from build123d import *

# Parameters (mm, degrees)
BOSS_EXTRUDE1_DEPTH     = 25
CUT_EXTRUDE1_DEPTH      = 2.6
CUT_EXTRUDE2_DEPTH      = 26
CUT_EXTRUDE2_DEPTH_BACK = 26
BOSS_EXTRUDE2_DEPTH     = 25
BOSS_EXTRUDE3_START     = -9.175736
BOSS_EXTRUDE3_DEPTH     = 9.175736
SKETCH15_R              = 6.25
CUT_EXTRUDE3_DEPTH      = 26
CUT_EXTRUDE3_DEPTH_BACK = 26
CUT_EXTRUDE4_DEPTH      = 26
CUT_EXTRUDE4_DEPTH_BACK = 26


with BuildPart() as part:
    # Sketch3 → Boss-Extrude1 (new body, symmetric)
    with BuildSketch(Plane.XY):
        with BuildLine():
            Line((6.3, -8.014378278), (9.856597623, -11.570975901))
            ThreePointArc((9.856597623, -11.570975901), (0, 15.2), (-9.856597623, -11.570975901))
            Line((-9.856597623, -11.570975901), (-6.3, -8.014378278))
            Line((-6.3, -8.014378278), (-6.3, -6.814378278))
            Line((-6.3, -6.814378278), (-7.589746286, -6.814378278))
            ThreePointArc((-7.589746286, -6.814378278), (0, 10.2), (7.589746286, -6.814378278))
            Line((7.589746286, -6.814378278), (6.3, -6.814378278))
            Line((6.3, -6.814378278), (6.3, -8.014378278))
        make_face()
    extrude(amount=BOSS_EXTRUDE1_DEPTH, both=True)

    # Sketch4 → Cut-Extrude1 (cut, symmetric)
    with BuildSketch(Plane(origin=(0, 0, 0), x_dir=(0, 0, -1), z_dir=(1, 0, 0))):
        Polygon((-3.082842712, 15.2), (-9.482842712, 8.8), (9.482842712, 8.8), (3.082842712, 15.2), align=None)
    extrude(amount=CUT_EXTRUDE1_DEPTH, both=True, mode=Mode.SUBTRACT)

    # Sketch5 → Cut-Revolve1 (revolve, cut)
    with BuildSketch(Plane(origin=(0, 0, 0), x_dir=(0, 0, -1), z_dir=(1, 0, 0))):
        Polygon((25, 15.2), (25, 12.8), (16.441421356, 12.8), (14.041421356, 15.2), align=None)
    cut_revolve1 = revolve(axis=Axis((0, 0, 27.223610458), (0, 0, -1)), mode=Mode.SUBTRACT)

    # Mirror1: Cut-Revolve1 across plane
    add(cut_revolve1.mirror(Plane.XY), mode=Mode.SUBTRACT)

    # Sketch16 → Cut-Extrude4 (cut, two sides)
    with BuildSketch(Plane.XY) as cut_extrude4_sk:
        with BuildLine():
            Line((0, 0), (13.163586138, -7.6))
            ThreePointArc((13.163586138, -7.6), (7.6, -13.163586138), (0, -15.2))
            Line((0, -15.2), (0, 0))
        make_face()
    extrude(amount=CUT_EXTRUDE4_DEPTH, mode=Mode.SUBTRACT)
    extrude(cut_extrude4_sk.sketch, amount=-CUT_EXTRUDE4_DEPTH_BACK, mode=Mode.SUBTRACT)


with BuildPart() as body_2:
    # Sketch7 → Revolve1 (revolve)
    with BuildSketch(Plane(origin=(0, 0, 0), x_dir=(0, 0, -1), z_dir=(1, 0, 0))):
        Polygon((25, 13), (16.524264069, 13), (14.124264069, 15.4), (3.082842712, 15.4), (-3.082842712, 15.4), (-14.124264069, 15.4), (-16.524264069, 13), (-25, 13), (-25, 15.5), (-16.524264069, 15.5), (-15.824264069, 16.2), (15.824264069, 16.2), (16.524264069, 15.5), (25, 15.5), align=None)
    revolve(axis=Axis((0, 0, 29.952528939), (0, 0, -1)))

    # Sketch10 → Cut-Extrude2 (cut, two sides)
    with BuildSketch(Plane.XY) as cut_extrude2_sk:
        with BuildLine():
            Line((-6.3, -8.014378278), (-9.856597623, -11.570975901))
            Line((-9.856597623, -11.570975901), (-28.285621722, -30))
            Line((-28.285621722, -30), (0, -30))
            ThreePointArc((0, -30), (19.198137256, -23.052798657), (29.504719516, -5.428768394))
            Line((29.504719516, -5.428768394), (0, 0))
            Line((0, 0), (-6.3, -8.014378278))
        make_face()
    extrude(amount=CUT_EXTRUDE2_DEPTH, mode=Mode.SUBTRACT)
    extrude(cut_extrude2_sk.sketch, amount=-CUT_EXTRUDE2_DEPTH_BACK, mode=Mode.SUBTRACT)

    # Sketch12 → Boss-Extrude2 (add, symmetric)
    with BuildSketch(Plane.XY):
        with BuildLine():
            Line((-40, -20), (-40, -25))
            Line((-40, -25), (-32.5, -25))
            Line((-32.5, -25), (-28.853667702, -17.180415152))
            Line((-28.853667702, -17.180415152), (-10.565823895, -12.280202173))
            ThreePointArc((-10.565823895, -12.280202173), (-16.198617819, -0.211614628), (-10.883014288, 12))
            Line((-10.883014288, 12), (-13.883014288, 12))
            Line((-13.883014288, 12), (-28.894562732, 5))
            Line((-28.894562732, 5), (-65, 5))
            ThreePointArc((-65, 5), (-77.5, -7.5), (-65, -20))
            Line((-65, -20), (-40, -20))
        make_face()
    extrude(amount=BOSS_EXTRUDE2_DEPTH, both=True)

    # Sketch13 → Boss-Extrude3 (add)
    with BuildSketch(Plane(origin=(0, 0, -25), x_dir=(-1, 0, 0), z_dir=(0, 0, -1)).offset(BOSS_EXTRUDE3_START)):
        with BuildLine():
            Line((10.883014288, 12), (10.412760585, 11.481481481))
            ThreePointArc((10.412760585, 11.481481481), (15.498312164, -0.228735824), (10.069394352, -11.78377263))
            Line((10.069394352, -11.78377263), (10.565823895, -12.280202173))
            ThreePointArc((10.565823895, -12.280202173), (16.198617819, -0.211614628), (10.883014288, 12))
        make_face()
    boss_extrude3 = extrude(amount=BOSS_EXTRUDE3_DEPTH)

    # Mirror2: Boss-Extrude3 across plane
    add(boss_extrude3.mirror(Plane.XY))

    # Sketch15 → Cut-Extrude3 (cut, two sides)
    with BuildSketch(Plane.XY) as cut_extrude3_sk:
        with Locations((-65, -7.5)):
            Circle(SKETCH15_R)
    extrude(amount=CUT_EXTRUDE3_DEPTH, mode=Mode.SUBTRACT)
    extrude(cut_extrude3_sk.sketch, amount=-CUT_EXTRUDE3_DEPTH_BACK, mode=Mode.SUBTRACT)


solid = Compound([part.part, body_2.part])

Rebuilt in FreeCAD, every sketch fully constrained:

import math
import FreeCAD as App
import Part
import Sketcher

V = App.Vector
Q = App.Units.Quantity

doc = App.newDocument("Part")
params = doc.addObject("Spreadsheet::Sheet", "Params")
for row, (alias, value) in enumerate([
    ("sketch1_radius", "15.2 mm"),
    ("sketch1_radius2", "10.2 mm"),
    ("sketch1_height", "1.2 mm"),
    ("pad1_length", "50 mm"),
    ("pocket1_length", "5.2 mm"),
    ("sketch3_width", "2.4 mm"),
    ("groove_angle", "360 deg"),
    ("sketch4_radius", "15.2 mm"),
    ("sketch5_width", "2.5 mm"),
    ("revolution_angle", "360 deg"),
    ("sketch6_radius", "30 mm"),
    ("sketch7_radius", "16.2 mm"),
    ("sketch7_radius2", "12.5 mm"),
    ("sketch7_width", "3 mm"),
    ("sketch7_width2", "25 mm"),
    ("sketch7_height", "5 mm"),
    ("pad2_length", "50 mm"),
    ("sketch8_radius", "15.5 mm"),
    ("sketch8_radius2", "16.2 mm"),
    ("pad3_length", "9.175736 mm"),
    ("sketch9_diameter", "12.5 mm"),
], start=1):
    params.set(f"A{row}", alias)
    params.set(f"B{row}", "=" + value)
    params.setAlias(f"B{row}", alias)

body = doc.addObject("PartDesign::Body", "Body")

# Sketch on XY plane
sketch1 = body.newObject("Sketcher::SketchObject", "Sketch")
sketch1.AttachmentSupport = (doc.getObject("XY_Plane"), [""])
sketch1.MapMode = "FlatFace"
sketch1.addGeometry([
    Part.LineSegment(V(6.3, -8, 0), V(9.9, -11.6, 0)),  # 0
    Part.ArcOfCircle(Part.Circle(V(0, 0, 0), V(0, 0, 1), 15.2), math.radians(-50), math.radians(230)),  # 1
    Part.LineSegment(V(-9.9, -11.6, 0), V(-6.3, -8, 0)),  # 2
    Part.LineSegment(V(-6.3, -8, 0), V(-6.3, -6.8, 0)),  # 3
    Part.LineSegment(V(-6.3, -6.8, 0), V(-7.6, -6.8, 0)),  # 4
    Part.ArcOfCircle(Part.Circle(V(0, 0, 0), V(0, 0, 1), 10.2), math.radians(-42), math.radians(222)),  # 5
    Part.LineSegment(V(7.6, -6.8, 0), V(6.3, -6.8, 0)),  # 6
    Part.LineSegment(V(6.3, -6.8, 0), V(6.3, -8, 0)),  # 7
], False)
sketch1.addConstraint([
    Sketcher.Constraint("Coincident", 0, 2, 1, 1),
    Sketcher.Constraint("Coincident", 1, 2, 2, 1),
    Sketcher.Constraint("Coincident", 2, 2, 3, 1),
    Sketcher.Constraint("Coincident", 3, 2, 4, 1),
    Sketcher.Constraint("Coincident", 4, 2, 5, 2),
    Sketcher.Constraint("Coincident", 5, 1, 6, 1),
    Sketcher.Constraint("Coincident", 6, 2, 7, 1),
    Sketcher.Constraint("Coincident", 7, 2, 0, 1),
    Sketcher.Constraint("Vertical", 3),
    Sketcher.Constraint("Horizontal", 4),
    Sketcher.Constraint("Horizontal", 6),
    Sketcher.Constraint("Vertical", 7),
    Sketcher.Constraint("Coincident", 1, 3, -1, 1),
    Sketcher.Constraint("Coincident", 5, 3, -1, 1),
    Sketcher.Constraint("Symmetric", 3, 2, 6, 2, -2),
    Sketcher.Constraint("Perpendicular", 0, 2),
    Sketcher.Constraint("Horizontal", 0, 2, 1, 2),
    Sketcher.Constraint("Horizontal", 2, 2, 7, 2),
    Sketcher.Constraint("Radius", 1, Q("15.2 mm")),
    Sketcher.Constraint("Radius", 5, Q("10.2 mm")),
    Sketcher.Constraint("DistanceY", 3, 1, 3, 2, Q("1.2 mm")),
    Sketcher.Constraint("DistanceX", 2, 2, -1, 1, Q("6.3 mm")),
    Sketcher.Constraint("Distance", 0, Q("5.029789 mm")),
])
sketch1.setExpression("Constraints[18]", "Params.sketch1_radius")
sketch1.setExpression("Constraints[19]", "Params.sketch1_radius2")
sketch1.setExpression("Constraints[20]", "Params.sketch1_height")
pad1 = body.newObject("PartDesign::Pad", "Pad")
pad1.Profile = sketch1
pad1.setExpression("Length", "Params.pad1_length")
pad1.Midplane = True

# Sketch on YZ plane
sketch2 = body.newObject("Sketcher::SketchObject", "Sketch001")
sketch2.AttachmentSupport = (doc.getObject("YZ_Plane"), [""])
sketch2.MapMode = "FlatFace"
sketch2.addGeometry([
    Part.LineSegment(V(15, 3, 0), V(9, 9, 0)),
    Part.LineSegment(V(9, 9, 0), V(9, -9, 0)),
    Part.LineSegment(V(9, -9, 0), V(15, -3, 0)),
    Part.LineSegment(V(15, -3, 0), V(15, 3, 0)),
], False)
sketch2.addConstraint([
    Sketcher.Constraint("Coincident", 0, 2, 1, 1),
    Sketcher.Constraint("Coincident", 1, 2, 2, 1),
    Sketcher.Constraint("Coincident", 2, 2, 3, 1),
    Sketcher.Constraint("Coincident", 3, 2, 0, 1),
    Sketcher.Constraint("Vertical", 1),
    Sketcher.Constraint("Vertical", 3),
    Sketcher.Constraint("Perpendicular", 0, 2),
    Sketcher.Constraint("Equal", 0, 2),
    Sketcher.Constraint("DistanceX", -1, 1, 0, 2, Q("8.8 mm")),
    Sketcher.Constraint("DistanceX", -1, 1, 2, 2, Q("15.2 mm")),
    Sketcher.Constraint("DistanceY", 1, 2, 1, 1, Q("18.965685 mm")),
    Sketcher.Constraint("DistanceY", -1, 1, 0, 2, Q("9.482843 mm")),
])
pocket1 = body.newObject("PartDesign::Pocket", "Pocket")
pocket1.Profile = sketch2
pocket1.setExpression("Length", "Params.pocket1_length")
pocket1.Midplane = True

# Sketch on YZ plane
sketch3 = body.newObject("Sketcher::SketchObject", "Sketch002")
sketch3.AttachmentSupport = (doc.getObject("YZ_Plane"), [""])
sketch3.MapMode = "FlatFace"
sketch3.addGeometry([
    Part.LineSegment(V(12.8, -25, 0), V(15.2, -25, 0)),
    Part.LineSegment(V(15.2, -25, 0), V(15.2, -14, 0)),
    Part.LineSegment(V(15.2, -14, 0), V(12.8, -16.4, 0)),
    Part.LineSegment(V(12.8, -16.4, 0), V(12.8, -25, 0)),
], False)
sketch3.addConstraint([
    Sketcher.Constraint("Coincident", 0, 2, 1, 1),
    Sketcher.Constraint("Coincident", 1, 2, 2, 1),
    Sketcher.Constraint("Coincident", 2, 2, 3, 1),
    Sketcher.Constraint("Coincident", 3, 2, 0, 1),
    Sketcher.Constraint("Horizontal", 0),
    Sketcher.Constraint("Vertical", 1),
    Sketcher.Constraint("Vertical", 3),
    Sketcher.Constraint("Angle", 2, Q("-135 deg")),
    Sketcher.Constraint("DistanceX", 0, 1, 0, 2, Q("2.4 mm")),
    Sketcher.Constraint("DistanceY", 0, 2, -1, 1, Q("25 mm")),
    Sketcher.Constraint("DistanceX", -1, 1, 0, 2, Q("15.2 mm")),
    Sketcher.Constraint("DistanceY", 1, 1, 1, 2, Q("10.958579 mm")),
])
sketch3.setExpression("Constraints[8]", "Params.sketch3_width")
groove = body.newObject("PartDesign::Groove", "Groove")
groove.Profile = sketch3
groove.ReferenceAxis = (sketch3, ["V_Axis"])
groove.setExpression("Angle", "Params.groove_angle")
doc.recompute()

mirrored = body.newObject("PartDesign::Mirrored", "Mirrored")
mirrored.Originals = [groove]
mirrored.MirrorPlane = (doc.getObject("XY_Plane"), [""])
body.Tip = mirrored

# Sketch on XY plane
sketch4 = body.newObject("Sketcher::SketchObject", "Sketch003")
sketch4.AttachmentSupport = (doc.getObject("XY_Plane"), [""])
sketch4.MapMode = "FlatFace"
sketch4.addGeometry([
    Part.LineSegment(V(13, -8, 0), V(0, 0, 0)),
    Part.LineSegment(V(0, 0, 0), V(0, -15, 0)),
    Part.ArcOfCircle(Part.Circle(V(0, 0, 0), V(0, 0, 1), 15), math.radians(-90), math.radians(-30)),
], False)
sketch4.addConstraint([
    Sketcher.Constraint("Coincident", 0, 2, 1, 1),
    Sketcher.Constraint("Coincident", 1, 2, 2, 1),
    Sketcher.Constraint("Coincident", 2, 2, 0, 1),
    Sketcher.Constraint("Vertical", 1),
    Sketcher.Constraint("Coincident", 2, 3, -1, 1),
    Sketcher.Constraint("Coincident", 0, 2, -1, 1),
    Sketcher.Constraint("Radius", 2, Q("15.2 mm")),
    Sketcher.Constraint("Angle", 0, Q("150 deg")),
])
sketch4.setExpression("Constraints[6]", "Params.sketch4_radius")
pocket2 = body.newObject("PartDesign::Pocket", "Pocket001")
pocket2.Profile = sketch4
pocket2.Type = "ThroughAll"
pocket2.Midplane = True
body2 = doc.addObject("PartDesign::Body", "Body001")

# Sketch on YZ plane
sketch5 = body2.newObject("Sketcher::SketchObject", "Sketch004")
sketch5.AttachmentSupport = (doc.getObject("YZ_Plane001"), [""])
sketch5.MapMode = "FlatFace"
sketch5.addGeometry([
    Part.LineSegment(V(13, -16.5, 0), V(13, -25, 0)),  # 0
    Part.LineSegment(V(13, -25, 0), V(15.5, -25, 0)),  # 1
    Part.LineSegment(V(15.5, -25, 0), V(15.5, -16.5, 0)),  # 2
    Part.LineSegment(V(15.5, -16.5, 0), V(16.2, -15.8, 0)),  # 3
    Part.LineSegment(V(16.2, -15.8, 0), V(16.2, 15.8, 0)),  # 4
    Part.LineSegment(V(16.2, 15.8, 0), V(15.5, 16.5, 0)),  # 5
    Part.LineSegment(V(15.5, 16.5, 0), V(15.5, 25, 0)),  # 6
    Part.LineSegment(V(15.5, 25, 0), V(13, 25, 0)),  # 7
    Part.LineSegment(V(13, 25, 0), V(13, 16.5, 0)),  # 8
    Part.LineSegment(V(13, 16.5, 0), V(15.4, 14.1, 0)),  # 9
    Part.LineSegment(V(15.4, 14.1, 0), V(15.4, -14.1, 0)),  # 10
    Part.LineSegment(V(15.4, -14.1, 0), V(13, -16.5, 0)),  # 11
], False)
sketch5.addConstraint([
    Sketcher.Constraint("Coincident", 0, 2, 1, 1),
    Sketcher.Constraint("Coincident", 1, 2, 2, 1),
    Sketcher.Constraint("Coincident", 2, 2, 3, 1),
    Sketcher.Constraint("Coincident", 3, 2, 4, 1),
    Sketcher.Constraint("Coincident", 4, 2, 5, 1),
    Sketcher.Constraint("Coincident", 5, 2, 6, 1),
    Sketcher.Constraint("Coincident", 6, 2, 7, 1),
    Sketcher.Constraint("Coincident", 7, 2, 8, 1),
    Sketcher.Constraint("Coincident", 8, 2, 9, 1),
    Sketcher.Constraint("Coincident", 9, 2, 10, 1),
    Sketcher.Constraint("Coincident", 10, 2, 11, 1),
    Sketcher.Constraint("Coincident", 11, 2, 0, 1),
    Sketcher.Constraint("Vertical", 0),
    Sketcher.Constraint("Horizontal", 1),
    Sketcher.Constraint("Vertical", 2),
    Sketcher.Constraint("Vertical", 4),
    Sketcher.Constraint("Vertical", 6),
    Sketcher.Constraint("Horizontal", 7),
    Sketcher.Constraint("Vertical", 8),
    Sketcher.Constraint("Vertical", 10),
    Sketcher.Constraint("Symmetric", 2, 2, 5, 2, -1),
    Sketcher.Constraint("Symmetric", 0, 2, 7, 2, -1),
    Sketcher.Constraint("Perpendicular", 3, 5),
    Sketcher.Constraint("Parallel", 5, 9),
    Sketcher.Constraint("Perpendicular", 9, 11),
    Sketcher.Constraint("Horizontal", 5, 2, 8, 2),
    Sketcher.Constraint("Horizontal", 2, 2, 11, 2),
    Sketcher.Constraint("Equal", 3, 5),
    Sketcher.Constraint("DistanceX", 1, 1, 1, 2, Q("2.5 mm")),
    Sketcher.Constraint("DistanceX", -1, 1, 0, 2, Q("13 mm")),
    Sketcher.Constraint("DistanceY", 0, 2, -1, 1, Q("25 mm")),
    Sketcher.Constraint("DistanceX", -1, 1, 3, 2, Q("16.2 mm")),
    Sketcher.Constraint("DistanceX", -1, 1, 9, 2, Q("15.4 mm")),
    Sketcher.Constraint("DistanceY", 4, 1, 4, 2, Q("31.648528 mm")),
])
sketch5.setExpression("Constraints[28]", "Params.sketch5_width")
revolution = body2.newObject("PartDesign::Revolution", "Revolution")
revolution.Profile = sketch5
revolution.ReferenceAxis = (sketch5, ["V_Axis"])
revolution.setExpression("Angle", "Params.revolution_angle")

# Sketch on XY plane
sketch6 = body2.newObject("Sketcher::SketchObject", "Sketch005")
sketch6.AttachmentSupport = (doc.getObject("XY_Plane001"), [""])
sketch6.MapMode = "FlatFace"
sketch6.addGeometry([
    Part.LineSegment(V(-6, -8, 0), V(-28, -30, 0)),  # 0
    Part.LineSegment(V(-28, -30, 0), V(0, -30, 0)),  # 1
    Part.ArcOfCircle(Part.Circle(V(0, 0, 0), V(0, 0, 1), 30), math.radians(-90), math.radians(-10)),  # 2
    Part.LineSegment(V(30, -5, 0), V(0, 0, 0)),  # 3
    Part.LineSegment(V(0, 0, 0), V(-6, -8, 0)),  # 4
], False)
sketch6.addConstraint([
    Sketcher.Constraint("Coincident", 0, 2, 1, 1),
    Sketcher.Constraint("Tangent", 1, 2, 2, 1),
    Sketcher.Constraint("Coincident", 2, 2, 3, 1),
    Sketcher.Constraint("Coincident", 3, 2, 4, 1),
    Sketcher.Constraint("Coincident", 4, 2, 0, 1),
    Sketcher.Constraint("Horizontal", 1),
    Sketcher.Constraint("Coincident", 2, 3, -1, 1),
    Sketcher.Constraint("Coincident", 3, 2, -1, 1),
    Sketcher.Constraint("Radius", 2, Q("30 mm")),
    Sketcher.Constraint("Angle", 0, Q("-135 deg")),
    Sketcher.Constraint("DistanceX", 4, 2, -1, 1, Q("6.3 mm")),
    Sketcher.Constraint("DistanceX", 1, 1, 1, 2, Q("28.285622 mm")),
    Sketcher.Constraint("DistanceX", -1, 1, 2, 2, Q("29.50472 mm")),
])
sketch6.setExpression("Constraints[8]", "Params.sketch6_radius")
pocket3 = body2.newObject("PartDesign::Pocket", "Pocket002")
pocket3.Profile = sketch6
pocket3.Type = "ThroughAll"
pocket3.Midplane = True

# Sketch on XY plane
sketch7 = body2.newObject("Sketcher::SketchObject", "Sketch006")
sketch7.AttachmentSupport = (doc.getObject("XY_Plane001"), [""])
sketch7.MapMode = "FlatFace"
sketch7.addGeometry([
    Part.LineSegment(V(-40, -20, 0), V(-40, -25, 0)),  # 0
    Part.LineSegment(V(-40, -25, 0), V(-32.5, -25, 0)),  # 1
    Part.LineSegment(V(-32.5, -25, 0), V(-28.9, -17.2, 0)),  # 2
    Part.LineSegment(V(-28.9, -17.2, 0), V(-10.6, -12.3, 0)),  # 3
    Part.ArcOfCircle(Part.Circle(V(0, 0, 0), V(0, 0, 1), 16.2), math.radians(132), math.radians(229)),  # 4
    Part.LineSegment(V(-10.9, 12, 0), V(-13.9, 12, 0)),  # 5
    Part.LineSegment(V(-13.9, 12, 0), V(-28.9, 5, 0)),  # 6
    Part.LineSegment(V(-28.9, 5, 0), V(-65, 5, 0)),  # 7
    Part.ArcOfCircle(Part.Circle(V(-65, -7.5, 0), V(0, 0, 1), 12.5), math.radians(90), math.radians(270)),  # 8
    Part.LineSegment(V(-65, -20, 0), V(-40, -20, 0)),  # 9
], False)
sketch7.addConstraint([
    Sketcher.Constraint("Coincident", 0, 2, 1, 1),
    Sketcher.Constraint("Coincident", 1, 2, 2, 1),
    Sketcher.Constraint("Coincident", 2, 2, 3, 1),
    Sketcher.Constraint("Coincident", 3, 2, 4, 2),
    Sketcher.Constraint("Coincident", 4, 1, 5, 1),
    Sketcher.Constraint("Coincident", 5, 2, 6, 1),
    Sketcher.Constraint("Coincident", 6, 2, 7, 1),
    Sketcher.Constraint("Tangent", 7, 2, 8, 1),
    Sketcher.Constraint("Tangent", 8, 2, 9, 1),
    Sketcher.Constraint("Coincident", 9, 2, 0, 1),
    Sketcher.Constraint("Vertical", 0),
    Sketcher.Constraint("Horizontal", 1),
    Sketcher.Constraint("Horizontal", 5),
    Sketcher.Constraint("Horizontal", 7),
    Sketcher.Constraint("Horizontal", 9),
    Sketcher.Constraint("Coincident", 4, 3, -1, 1),
    Sketcher.Constraint("Radius", 4, Q("16.2 mm")),
    Sketcher.Constraint("Radius", 8, Q("12.5 mm")),
    Sketcher.Constraint("DistanceX", 5, 2, 5, 1, Q("3 mm")),
    Sketcher.Constraint("DistanceX", 9, 1, 9, 2, Q("25 mm")),
    Sketcher.Constraint("DistanceY", 0, 2, 0, 1, Q("5 mm")),
    Sketcher.Constraint("Angle", 2, Q("65 deg")),
    Sketcher.Constraint("Angle", 3, Q("15 deg")),
    Sketcher.Constraint("Angle", 6, Q("-155 deg")),
    Sketcher.Constraint("DistanceX", 1, 1, 1, 2, Q("7.5 mm")),
    Sketcher.Constraint("DistanceX", 8, 3, -1, 1, Q("65 mm")),
    Sketcher.Constraint("DistanceY", 0, 2, -1, 1, Q("25 mm")),
    Sketcher.Constraint("DistanceY", -1, 1, 4, 1, Q("12 mm")),
    Sketcher.Constraint("Distance", 3, Q("18.932969 mm")),
])
sketch7.setExpression("Constraints[16]", "Params.sketch7_radius")
sketch7.setExpression("Constraints[17]", "Params.sketch7_radius2")
sketch7.setExpression("Constraints[18]", "Params.sketch7_width")
sketch7.setExpression("Constraints[19]", "Params.sketch7_width2")
sketch7.setExpression("Constraints[20]", "Params.sketch7_height")
pad2 = body2.newObject("PartDesign::Pad", "Pad001")
pad2.Profile = sketch7
pad2.setExpression("Length", "Params.pad2_length")
pad2.Midplane = True

# Sketch on XY plane
sketch8 = body2.newObject("Sketcher::SketchObject", "Sketch007")
sketch8.AttachmentSupport = (doc.getObject("XY_Plane001"), [""])
sketch8.MapMode = "FlatFace"
sketch8.AttachmentOffset = App.Placement(V(0, 0, -15.824264), App.Rotation())
sketch8.addGeometry([
    Part.LineSegment(V(-10.9, 12, 0), V(-10.4, 11.5, 0)),
    Part.ArcOfCircle(Part.Circle(V(0, 0, 0), V(0, 0, 1), 15.5), math.radians(132), math.radians(229)),
    Part.LineSegment(V(-10.1, -11.8, 0), V(-10.6, -12.3, 0)),
    Part.ArcOfCircle(Part.Circle(V(0, 0, 0), V(0, 0, 1), 16.2), math.radians(132), math.radians(229)),
], False)
sketch8.addConstraint([
    Sketcher.Constraint("Coincident", 0, 2, 1, 1),
    Sketcher.Constraint("Coincident", 1, 2, 2, 1),
    Sketcher.Constraint("Coincident", 2, 2, 3, 2),
    Sketcher.Constraint("Coincident", 3, 1, 0, 1),
    Sketcher.Constraint("Coincident", 1, 3, -1, 1),
    Sketcher.Constraint("Coincident", 3, 3, -1, 1),
    Sketcher.Constraint("Radius", 1, Q("15.5 mm")),
    Sketcher.Constraint("Radius", 3, Q("16.2 mm")),
    Sketcher.Constraint("Angle", 2, Q("-135 deg")),
    Sketcher.Constraint("DistanceY", -1, 1, 3, 1, Q("12 mm")),
    Sketcher.Constraint("DistanceX", 0, 2, -1, 1, Q("10.412761 mm")),
    Sketcher.Constraint("DistanceX", 3, 1, 1, 2, Q("0.81362 mm")),
])
sketch8.setExpression("Constraints[6]", "Params.sketch8_radius")
sketch8.setExpression("Constraints[7]", "Params.sketch8_radius2")
pad3 = body2.newObject("PartDesign::Pad", "Pad002")
pad3.Profile = sketch8
pad3.setExpression("Length", "Params.pad3_length")
pad3.Reversed = True
doc.recompute()

mirrored2 = body2.newObject("PartDesign::Mirrored", "Mirrored001")
mirrored2.Originals = [pad3]
mirrored2.MirrorPlane = (doc.getObject("XY_Plane001"), [""])
body2.Tip = mirrored2

# Sketch on XY plane
sketch9 = body2.newObject("Sketcher::SketchObject", "Sketch008")
sketch9.AttachmentSupport = (doc.getObject("XY_Plane001"), [""])
sketch9.MapMode = "FlatFace"
sketch9.addGeometry(Part.Circle(V(-65, -8, 0), V(0, 0, 1), 6), False)
sketch9.addConstraint([
    Sketcher.Constraint("Diameter", 0, Q("12.5 mm")),
    Sketcher.Constraint("DistanceX", 0, 3, -1, 1, Q("65 mm")),
    Sketcher.Constraint("DistanceY", 0, 3, -1, 1, Q("7.5 mm")),
])
sketch9.setExpression("Constraints[0]", "Params.sketch9_diameter")
pocket4 = body2.newObject("PartDesign::Pocket", "Pocket003")
pocket4.Profile = sketch9
pocket4.Type = "ThroughAll"
pocket4.Midplane = True

doc.recompute()
